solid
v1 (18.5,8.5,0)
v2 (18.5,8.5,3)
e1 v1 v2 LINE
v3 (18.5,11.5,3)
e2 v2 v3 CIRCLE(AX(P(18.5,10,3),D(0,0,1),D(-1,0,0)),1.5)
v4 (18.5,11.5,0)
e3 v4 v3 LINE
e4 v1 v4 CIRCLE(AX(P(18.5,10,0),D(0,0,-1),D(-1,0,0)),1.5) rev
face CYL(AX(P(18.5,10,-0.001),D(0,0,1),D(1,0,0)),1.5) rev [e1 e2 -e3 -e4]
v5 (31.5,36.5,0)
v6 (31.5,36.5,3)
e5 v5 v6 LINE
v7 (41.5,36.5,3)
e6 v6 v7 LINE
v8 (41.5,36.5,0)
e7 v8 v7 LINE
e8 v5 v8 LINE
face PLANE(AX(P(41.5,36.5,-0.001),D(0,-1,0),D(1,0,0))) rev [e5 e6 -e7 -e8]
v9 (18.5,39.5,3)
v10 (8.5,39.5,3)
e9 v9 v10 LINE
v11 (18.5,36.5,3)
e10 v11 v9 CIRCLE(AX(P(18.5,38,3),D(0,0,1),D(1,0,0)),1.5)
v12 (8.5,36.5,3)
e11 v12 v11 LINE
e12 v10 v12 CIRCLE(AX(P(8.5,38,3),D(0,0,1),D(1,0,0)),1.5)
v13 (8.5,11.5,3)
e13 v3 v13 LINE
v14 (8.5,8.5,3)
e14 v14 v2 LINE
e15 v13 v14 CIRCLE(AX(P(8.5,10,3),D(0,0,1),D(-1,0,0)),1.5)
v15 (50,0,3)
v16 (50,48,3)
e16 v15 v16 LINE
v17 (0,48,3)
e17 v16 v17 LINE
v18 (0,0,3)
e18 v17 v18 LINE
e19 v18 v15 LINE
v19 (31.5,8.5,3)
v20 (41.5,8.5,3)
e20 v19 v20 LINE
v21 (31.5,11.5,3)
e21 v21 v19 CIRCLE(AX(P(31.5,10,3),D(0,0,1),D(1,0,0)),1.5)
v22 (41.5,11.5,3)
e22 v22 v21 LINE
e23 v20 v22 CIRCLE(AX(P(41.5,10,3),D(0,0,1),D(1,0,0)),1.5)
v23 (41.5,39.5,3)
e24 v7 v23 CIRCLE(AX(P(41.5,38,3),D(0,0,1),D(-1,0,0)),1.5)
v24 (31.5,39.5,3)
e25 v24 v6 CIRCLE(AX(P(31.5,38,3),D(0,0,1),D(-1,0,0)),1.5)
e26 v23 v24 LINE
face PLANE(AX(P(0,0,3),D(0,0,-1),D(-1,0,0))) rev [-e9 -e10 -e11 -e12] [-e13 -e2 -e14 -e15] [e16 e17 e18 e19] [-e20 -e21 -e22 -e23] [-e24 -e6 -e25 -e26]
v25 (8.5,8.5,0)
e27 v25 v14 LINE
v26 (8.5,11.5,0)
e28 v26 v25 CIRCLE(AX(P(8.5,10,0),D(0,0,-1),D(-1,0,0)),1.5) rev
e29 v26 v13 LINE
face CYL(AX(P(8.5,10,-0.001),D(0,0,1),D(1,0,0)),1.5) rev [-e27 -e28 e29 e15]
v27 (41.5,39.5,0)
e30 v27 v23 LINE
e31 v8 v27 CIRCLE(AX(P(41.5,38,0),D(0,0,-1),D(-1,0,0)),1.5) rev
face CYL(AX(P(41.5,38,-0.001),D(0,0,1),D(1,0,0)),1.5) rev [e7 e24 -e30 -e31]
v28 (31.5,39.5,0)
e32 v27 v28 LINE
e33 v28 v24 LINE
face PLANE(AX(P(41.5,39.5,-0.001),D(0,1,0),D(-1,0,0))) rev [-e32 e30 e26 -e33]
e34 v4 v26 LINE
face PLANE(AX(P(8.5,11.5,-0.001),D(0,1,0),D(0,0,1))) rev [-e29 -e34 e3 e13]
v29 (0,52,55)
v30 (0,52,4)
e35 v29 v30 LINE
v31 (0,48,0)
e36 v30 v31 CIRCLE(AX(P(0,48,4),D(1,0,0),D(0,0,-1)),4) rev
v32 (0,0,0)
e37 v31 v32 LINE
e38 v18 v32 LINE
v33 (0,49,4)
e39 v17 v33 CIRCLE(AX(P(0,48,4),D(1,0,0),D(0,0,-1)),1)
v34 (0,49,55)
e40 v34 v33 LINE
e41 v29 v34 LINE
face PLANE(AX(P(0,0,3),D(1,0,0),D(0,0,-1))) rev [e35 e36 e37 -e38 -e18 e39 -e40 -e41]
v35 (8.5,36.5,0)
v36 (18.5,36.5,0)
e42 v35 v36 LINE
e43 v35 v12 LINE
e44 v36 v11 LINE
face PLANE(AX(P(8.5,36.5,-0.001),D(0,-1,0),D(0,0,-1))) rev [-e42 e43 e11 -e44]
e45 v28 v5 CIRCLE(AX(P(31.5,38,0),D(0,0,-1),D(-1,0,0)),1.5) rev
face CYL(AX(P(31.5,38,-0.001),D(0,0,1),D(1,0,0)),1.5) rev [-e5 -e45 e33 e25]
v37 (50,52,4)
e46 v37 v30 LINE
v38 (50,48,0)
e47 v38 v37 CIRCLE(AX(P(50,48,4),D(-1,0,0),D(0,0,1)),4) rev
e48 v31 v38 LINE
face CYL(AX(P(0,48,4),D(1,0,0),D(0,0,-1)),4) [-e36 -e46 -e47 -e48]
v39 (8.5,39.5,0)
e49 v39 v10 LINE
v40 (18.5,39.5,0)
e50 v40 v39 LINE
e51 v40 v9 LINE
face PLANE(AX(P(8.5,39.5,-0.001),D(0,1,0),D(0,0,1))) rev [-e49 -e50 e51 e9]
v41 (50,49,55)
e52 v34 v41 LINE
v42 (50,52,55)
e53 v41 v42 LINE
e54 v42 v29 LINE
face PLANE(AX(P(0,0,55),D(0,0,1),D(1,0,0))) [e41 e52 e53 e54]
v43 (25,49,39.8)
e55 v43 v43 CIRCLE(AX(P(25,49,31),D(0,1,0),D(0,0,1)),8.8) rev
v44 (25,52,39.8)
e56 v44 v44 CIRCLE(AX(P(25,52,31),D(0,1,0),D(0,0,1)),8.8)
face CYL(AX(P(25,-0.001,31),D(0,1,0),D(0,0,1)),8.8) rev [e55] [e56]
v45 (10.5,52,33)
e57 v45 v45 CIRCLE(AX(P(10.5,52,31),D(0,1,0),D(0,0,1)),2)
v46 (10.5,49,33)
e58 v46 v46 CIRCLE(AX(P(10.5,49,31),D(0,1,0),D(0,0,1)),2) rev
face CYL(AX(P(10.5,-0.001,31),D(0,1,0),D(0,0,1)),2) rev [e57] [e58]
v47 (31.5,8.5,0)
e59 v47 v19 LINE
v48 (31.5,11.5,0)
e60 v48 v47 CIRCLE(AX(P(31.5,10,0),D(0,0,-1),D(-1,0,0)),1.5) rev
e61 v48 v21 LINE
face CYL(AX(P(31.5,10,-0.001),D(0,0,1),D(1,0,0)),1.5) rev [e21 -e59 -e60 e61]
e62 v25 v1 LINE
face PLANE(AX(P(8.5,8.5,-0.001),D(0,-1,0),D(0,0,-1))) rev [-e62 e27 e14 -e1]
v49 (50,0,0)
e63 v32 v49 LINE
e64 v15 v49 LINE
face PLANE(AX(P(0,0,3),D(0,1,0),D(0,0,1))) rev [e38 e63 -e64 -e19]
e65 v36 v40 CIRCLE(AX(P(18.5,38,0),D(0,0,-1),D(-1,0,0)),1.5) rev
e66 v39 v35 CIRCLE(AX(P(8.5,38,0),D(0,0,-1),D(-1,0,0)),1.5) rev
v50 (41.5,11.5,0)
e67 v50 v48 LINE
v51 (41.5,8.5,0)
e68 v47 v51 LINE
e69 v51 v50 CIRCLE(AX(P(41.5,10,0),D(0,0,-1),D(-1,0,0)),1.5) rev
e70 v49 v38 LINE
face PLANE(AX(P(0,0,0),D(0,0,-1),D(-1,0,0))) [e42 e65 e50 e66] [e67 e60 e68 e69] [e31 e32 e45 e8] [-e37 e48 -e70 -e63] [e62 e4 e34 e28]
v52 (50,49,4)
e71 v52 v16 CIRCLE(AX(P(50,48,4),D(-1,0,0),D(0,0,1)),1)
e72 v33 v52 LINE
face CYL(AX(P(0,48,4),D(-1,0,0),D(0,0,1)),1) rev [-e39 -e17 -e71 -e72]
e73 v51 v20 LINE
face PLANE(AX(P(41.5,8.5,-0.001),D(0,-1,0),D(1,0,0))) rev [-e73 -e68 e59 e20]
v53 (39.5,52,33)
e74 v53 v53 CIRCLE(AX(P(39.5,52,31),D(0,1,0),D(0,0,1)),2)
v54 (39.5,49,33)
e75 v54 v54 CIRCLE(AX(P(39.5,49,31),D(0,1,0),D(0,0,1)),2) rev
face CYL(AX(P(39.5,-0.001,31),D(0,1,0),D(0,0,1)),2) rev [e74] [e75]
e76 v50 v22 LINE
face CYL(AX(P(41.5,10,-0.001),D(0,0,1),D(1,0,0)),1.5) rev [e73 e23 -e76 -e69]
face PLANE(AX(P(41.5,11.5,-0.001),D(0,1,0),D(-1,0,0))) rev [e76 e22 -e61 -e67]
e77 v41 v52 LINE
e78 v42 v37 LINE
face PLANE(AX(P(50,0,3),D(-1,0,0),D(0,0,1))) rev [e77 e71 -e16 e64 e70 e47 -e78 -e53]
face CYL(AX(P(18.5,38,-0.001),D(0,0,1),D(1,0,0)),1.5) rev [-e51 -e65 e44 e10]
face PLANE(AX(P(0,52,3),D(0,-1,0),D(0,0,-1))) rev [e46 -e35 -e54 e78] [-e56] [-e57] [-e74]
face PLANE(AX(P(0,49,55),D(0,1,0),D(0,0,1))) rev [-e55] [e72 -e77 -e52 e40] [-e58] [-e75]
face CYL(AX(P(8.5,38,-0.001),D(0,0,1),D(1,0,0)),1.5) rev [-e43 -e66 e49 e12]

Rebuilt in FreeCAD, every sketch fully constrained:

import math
import FreeCAD as App
import Part
import Sketcher

V = App.Vector


def edges_at(feature, points):
    """Names of the edges that pass closest to the given points."""
    edges = feature.Shape.Edges
    near = lambda p: min(range(len(edges)), key=lambda i: edges[i].distToShape(Part.Vertex(*p))[0])
    return sorted({f"Edge{near(p) + 1}" for p in points})


def add_polygon(sketch, points):
    """Adds a closed chain of lines whose ends are joined by coincident constraints."""
    first, n = sketch.GeometryCount, len(points)
    for a, b in zip(points, points[1:] + points[:1]):
        sketch.addGeometry(Part.LineSegment(App.Vector(*a, 0), App.Vector(*b, 0)), False)
    for i in range(n):
        sketch.addConstraint(Sketcher.Constraint("Coincident", first + i, 2, first + (i + 1) % n, 1))

doc = App.newDocument("Part")
body = doc.addObject("PartDesign::Body", "Body")

# Sketch on XY plane
sketch1 = doc.addObject("Sketcher::SketchObject", "Sketch")
body.addObject(sketch1)
sketch1.AttachmentSupport = (doc.XY_Plane, [""])
sketch1.MapMode = "FlatFace"
add_polygon(sketch1, [(0, 52), (0, 0), (50, 0), (50, 52)])  # lines 0-3
sketch1.addConstraint(Sketcher.Constraint("Vertical", 0))
sketch1.addConstraint(Sketcher.Constraint("Horizontal", 1))
sketch1.addConstraint(Sketcher.Constraint("Vertical", 2))
sketch1.addConstraint(Sketcher.Constraint("Horizontal", 3))
sketch1.addConstraint(Sketcher.Constraint("Coincident", 0, 2, -1, 1))
sketch1.addConstraint(Sketcher.Constraint("DistanceX", 1, 1, 1, 2, 50.0))
sketch1.addConstraint(Sketcher.Constraint("DistanceY", 0, 2, 0, 1, 52.0))
pad1 = doc.addObject("PartDesign::Pad", "Pad")
body.addObject(pad1)
pad1.Profile = sketch1
pad1.Length = 3

# Sketch on XY plane
sketch2 = doc.addObject("Sketcher::SketchObject", "Sketch001")
body.addObject(sketch2)
sketch2.AttachmentSupport = (doc.XY_Plane, [""])
sketch2.MapMode = "FlatFace"
sketch2.AttachmentOffset = App.Placement(V(0, 0, 3), App.Rotation())
add_polygon(sketch2, [(0, 52), (0, 49), (50, 49), (50, 52)])  # lines 0-3
sketch2.addConstraint(Sketcher.Constraint("Vertical", 0))
sketch2.addConstraint(Sketcher.Constraint("Horizontal", 1))
sketch2.addConstraint(Sketcher.Constraint("Vertical", 2))
sketch2.addConstraint(Sketcher.Constraint("Horizontal", 3))
sketch2.addConstraint(Sketcher.Constraint("PointOnObject", 0, 2, -2))
sketch2.addConstraint(Sketcher.Constraint("DistanceX", 1, 1, 1, 2, 50.0))
sketch2.addConstraint(Sketcher.Constraint("DistanceY", 0, 2, 0, 1, 3.0))
sketch2.addConstraint(Sketcher.Constraint("DistanceY", -1, 1, 0, 2, 49.0))
pad2 = doc.addObject("PartDesign::Pad", "Pad001")
body.addObject(pad2)
pad2.Profile = sketch2
pad2.Length = 52
doc.recompute()

fillet = doc.addObject("PartDesign::Fillet", "Fillet")
body.addObject(fillet)
fillet.Base = (pad2, edges_at(pad2, [(25, 52, 0)]))
fillet.Radius = 4
doc.recompute()

fillet2 = doc.addObject("PartDesign::Fillet", "Fillet001")
body.addObject(fillet2)
fillet2.Base = (fillet, edges_at(fillet, [(25, 49, 3)]))
fillet2.Radius = 1

# Sketch on XZ plane
sketch3 = doc.addObject("Sketcher::SketchObject", "Sketch002")
body.addObject(sketch3)
sketch3.AttachmentSupport = (doc.XZ_Plane, [""])
sketch3.MapMode = "FlatFace"
sketch3.AttachmentOffset = App.Placement(V(0, 0, -52), App.Rotation())
sketch3.addGeometry(Part.Circle(V(10.5, 31, 0), V(0, 0, 1), 2), False)
sketch3.addConstraint(Sketcher.Constraint("Diameter", 0, 4.0))
sketch3.addConstraint(Sketcher.Constraint("DistanceY", -1, 1, 0, 3, 31.0))
sketch3.addConstraint(Sketcher.Constraint("DistanceX", -1, 1, 0, 3, 10.5))
pocket1 = doc.addObject("PartDesign::Pocket", "Pocket")
body.addObject(pocket1)
pocket1.Profile = sketch3
pocket1.Type = "UpToFirst"
pocket1.Reversed = True

# Sketch on XZ plane
sketch4 = doc.addObject("Sketcher::SketchObject", "Sketch003")
body.addObject(sketch4)
sketch4.AttachmentSupport = (doc.XZ_Plane, [""])
sketch4.MapMode = "FlatFace"
sketch4.AttachmentOffset = App.Placement(V(0, 0, -52), App.Rotation())
sketch4.addGeometry(Part.Circle(V(39.5, 31, 0), V(0, 0, 1), 2), False)
sketch4.addConstraint(Sketcher.Constraint("Diameter", 0, 4.0))
sketch4.addConstraint(Sketcher.Constraint("DistanceY", -1, 1, 0, 3, 31.0))
sketch4.addConstraint(Sketcher.Constraint("DistanceX", -1, 1, 0, 3, 39.5))
pocket2 = doc.addObject("PartDesign::Pocket", "Pocket001")
body.addObject(pocket2)
pocket2.Profile = sketch4
pocket2.Type = "UpToFirst"
pocket2.Reversed = True

# Sketch on XZ plane
sketch5 = doc.addObject("Sketcher::SketchObject", "Sketch004")
body.addObject(sketch5)
sketch5.AttachmentSupport = (doc.XZ_Plane, [""])
sketch5.MapMode = "FlatFace"
sketch5.AttachmentOffset = App.Placement(V(0, 0, -52), App.Rotation())
sketch5.addGeometry(Part.Circle(V(25, 31, 0), V(0, 0, 1), 9), False)
sketch5.addConstraint(Sketcher.Constraint("Diameter", 0, 17.6))
sketch5.addConstraint(Sketcher.Constraint("DistanceX", -1, 1, 0, 3, 25.0))
sketch5.addConstraint(Sketcher.Constraint("DistanceY", -1, 1, 0, 3, 31.0))
pocket3 = doc.addObject("PartDesign::Pocket", "Pocket002")
body.addObject(pocket3)
pocket3.Profile = sketch5
pocket3.Type = "UpToFirst"
pocket3.Reversed = True

# Sketch on XY plane
sketch6 = doc.addObject("Sketcher::SketchObject", "Sketch005")
body.addObject(sketch6)
sketch6.AttachmentSupport = (doc.XY_Plane, [""])
sketch6.MapMode = "FlatFace"
sketch6.AttachmentOffset = App.Placement(V(0, 0, 3), App.Rotation())
sketch6.addGeometry(Part.LineSegment(V(18.5, 39.5, 0), V(8.5, 39.5, 0)), False)
sketch6.addGeometry(Part.ArcOfCircle(Part.Circle(V(8.5, 38, 0), V(0, 0, 1), 1.5), math.radians(90), math.radians(270)), False)
sketch6.addGeometry(Part.LineSegment(V(8.5, 36.5, 0), V(18.5, 36.5, 0)), False)
sketch6.addGeometry(Part.ArcOfCircle(Part.Circle(V(18.5, 38, 0), V(0, 0, 1), 1.5), math.radians(-90), math.radians(90)), False)
sketch6.addConstraint(Sketcher.Constraint("Tangent", 0, 2, 1, 1))
sketch6.addConstraint(Sketcher.Constraint("Tangent", 1, 2, 2, 1))
sketch6.addConstraint(Sketcher.Constraint("Tangent", 2, 2, 3, 1))
sketch6.addConstraint(Sketcher.Constraint("Tangent", 3, 2, 0, 1))
sketch6.addConstraint(Sketcher.Constraint("Horizontal", 0))
sketch6.addConstraint(Sketcher.Constraint("Horizontal", 2))
sketch6.addConstraint(Sketcher.Constraint("Radius", 1, 1.5))
sketch6.addConstraint(Sketcher.Constraint("DistanceX", 0, 2, 0, 1, 10.0))
sketch6.addConstraint(Sketcher.Constraint("DistanceY", -1, 1, 1, 3, 38.0))
sketch6.addConstraint(Sketcher.Constraint("DistanceX", -1, 1, 1, 3, 8.5))
pocket4 = doc.addObject("PartDesign::Pocket", "Pocket003")
body.addObject(pocket4)
pocket4.Profile = sketch6
pocket4.Type = "UpToFirst"

# Sketch on XY plane
sketch7 = doc.addObject("Sketcher::SketchObject", "Sketch006")
body.addObject(sketch7)
sketch7.AttachmentSupport = (doc.XY_Plane, [""])
sketch7.MapMode = "FlatFace"
sketch7.AttachmentOffset = App.Placement(V(0, 0, 3), App.Rotation())
sketch7.addGeometry(Part.LineSegment(V(41.5, 39.5, 0), V(31.5, 39.5, 0)), False)
sketch7.addGeometry(Part.ArcOfCircle(Part.Circle(V(31.5, 38, 0), V(0, 0, 1), 1.5), math.radians(90), math.radians(270)), False)
sketch7.addGeometry(Part.LineSegment(V(31.5, 36.5, 0), V(41.5, 36.5, 0)), False)
sketch7.addGeometry(Part.ArcOfCircle(Part.Circle(V(41.5, 38, 0), V(0, 0, 1), 1.5), math.radians(-90), math.radians(90)), False)
sketch7.addConstraint(Sketcher.Constraint("Tangent", 0, 2, 1, 1))
sketch7.addConstraint(Sketcher.Constraint("Tangent", 1, 2, 2, 1))
sketch7.addConstraint(Sketcher.Constraint("Tangent", 2, 2, 3, 1))
sketch7.addConstraint(Sketcher.Constraint("Tangent", 3, 2, 0, 1))
sketch7.addConstraint(Sketcher.Constraint("Horizontal", 0))
sketch7.addConstraint(Sketcher.Constraint("Horizontal", 2))
sketch7.addConstraint(Sketcher.Constraint("Radius", 1, 1.5))
sketch7.addConstraint(Sketcher.Constraint("DistanceX", 0, 2, 0, 1, 10.0))
sketch7.addConstraint(Sketcher.Constraint("DistanceY", -1, 1, 1, 3, 38.0))
sketch7.addConstraint(Sketcher.Constraint("DistanceX", -1, 1, 1, 3, 31.5))
pocket5 = doc.addObject("PartDesign::Pocket", "Pocket004")
body.addObject(pocket5)
pocket5.Profile = sketch7
pocket5.Type = "UpToFirst"

# Sketch on XY plane
sketch8 = doc.addObject("Sketcher::SketchObject", "Sketch007")
body.addObject(sketch8)
sketch8.AttachmentSupport = (doc.XY_Plane, [""])
sketch8.MapMode = "FlatFace"
sketch8.AttachmentOffset = App.Placement(V(0, 0, 3), App.Rotation())
sketch8.addGeometry(Part.LineSegment(V(8.5, 8.5, 0), V(18.5, 8.5, 0)), False)
sketch8.addGeometry(Part.ArcOfCircle(Part.Circle(V(18.5, 10, 0), V(0, 0, 1), 1.5), math.radians(-90), math.radians(90)), False)
sketch8.addGeometry(Part.LineSegment(V(18.5, 11.5, 0), V(8.5, 11.5, 0)), False)
sketch8.addGeometry(Part.ArcOfCircle(Part.Circle(V(8.5, 10, 0), V(0, 0, 1), 1.5), math.radians(90), math.radians(270)), False)
sketch8.addConstraint(Sketcher.Constraint("Tangent", 0, 2, 1, 1))
sketch8.addConstraint(Sketcher.Constraint("Tangent", 1, 2, 2, 1))
sketch8.addConstraint(Sketcher.Constraint("Tangent", 2, 2, 3, 1))
sketch8.addConstraint(Sketcher.Constraint("Tangent", 3, 2, 0, 1))
sketch8.addConstraint(Sketcher.Constraint("Horizontal", 0))
sketch8.addConstraint(Sketcher.Constraint("Horizontal", 2))
sketch8.addConstraint(Sketcher.Constraint("Radius", 1, 1.5))
sketch8.addConstraint(Sketcher.Constraint("DistanceX", 0, 1, 0, 2, 10.0))
sketch8.addConstraint(Sketcher.Constraint("DistanceY", -1, 1, 1, 3, 10.0))
sketch8.addConstraint(Sketcher.Constraint("DistanceX", -1, 1, 1, 3, 18.5))
pocket6 = doc.addObject("PartDesign::Pocket", "Pocket005")
body.addObject(pocket6)
pocket6.Profile = sketch8
pocket6.Type = "UpToFirst"

# Sketch on XY plane
sketch9 = doc.addObject("Sketcher::SketchObject", "Sketch008")
body.addObject(sketch9)
sketch9.AttachmentSupport = (doc.XY_Plane, [""])
sketch9.MapMode = "FlatFace"
sketch9.AttachmentOffset = App.Placement(V(0, 0, 3), App.Rotation())
sketch9.addGeometry(Part.LineSegment(V(31.5, 8.5, 0), V(41.5, 8.5, 0)), False)
sketch9.addGeometry(Part.ArcOfCircle(Part.Circle(V(41.5, 10, 0), V(0, 0, 1), 1.5), math.radians(-90), math.radians(90)), False)
sketch9.addGeometry(Part.LineSegment(V(41.5, 11.5, 0), V(31.5, 11.5, 0)), False)
sketch9.addGeometry(Part.ArcOfCircle(Part.Circle(V(31.5, 10, 0), V(0, 0, 1), 1.5), math.radians(90), math.radians(270)), False)
sketch9.addConstraint(Sketcher.Constraint("Tangent", 0, 2, 1, 1))
sketch9.addConstraint(Sketcher.Constraint("Tangent", 1, 2, 2, 1))
sketch9.addConstraint(Sketcher.Constraint("Tangent", 2, 2, 3, 1))
sketch9.addConstraint(Sketcher.Constraint("Tangent", 3, 2, 0, 1))
sketch9.addConstraint(Sketcher.Constraint("Horizontal", 0))
sketch9.addConstraint(Sketcher.Constraint("Horizontal", 2))
sketch9.addConstraint(Sketcher.Constraint("Radius", 1, 1.5))
sketch9.addConstraint(Sketcher.Constraint("DistanceX", 0, 1, 0, 2, 10.0))
sketch9.addConstraint(Sketcher.Constraint("DistanceY", -1, 1, 1, 3, 10.0))
sketch9.addConstraint(Sketcher.Constraint("DistanceX", -1, 1, 1, 3, 41.5))
pocket7 = doc.addObject("PartDesign::Pocket", "Pocket006")
body.addObject(pocket7)
pocket7.Profile = sketch9
pocket7.Type = "UpToFirst"

doc.recompute()
